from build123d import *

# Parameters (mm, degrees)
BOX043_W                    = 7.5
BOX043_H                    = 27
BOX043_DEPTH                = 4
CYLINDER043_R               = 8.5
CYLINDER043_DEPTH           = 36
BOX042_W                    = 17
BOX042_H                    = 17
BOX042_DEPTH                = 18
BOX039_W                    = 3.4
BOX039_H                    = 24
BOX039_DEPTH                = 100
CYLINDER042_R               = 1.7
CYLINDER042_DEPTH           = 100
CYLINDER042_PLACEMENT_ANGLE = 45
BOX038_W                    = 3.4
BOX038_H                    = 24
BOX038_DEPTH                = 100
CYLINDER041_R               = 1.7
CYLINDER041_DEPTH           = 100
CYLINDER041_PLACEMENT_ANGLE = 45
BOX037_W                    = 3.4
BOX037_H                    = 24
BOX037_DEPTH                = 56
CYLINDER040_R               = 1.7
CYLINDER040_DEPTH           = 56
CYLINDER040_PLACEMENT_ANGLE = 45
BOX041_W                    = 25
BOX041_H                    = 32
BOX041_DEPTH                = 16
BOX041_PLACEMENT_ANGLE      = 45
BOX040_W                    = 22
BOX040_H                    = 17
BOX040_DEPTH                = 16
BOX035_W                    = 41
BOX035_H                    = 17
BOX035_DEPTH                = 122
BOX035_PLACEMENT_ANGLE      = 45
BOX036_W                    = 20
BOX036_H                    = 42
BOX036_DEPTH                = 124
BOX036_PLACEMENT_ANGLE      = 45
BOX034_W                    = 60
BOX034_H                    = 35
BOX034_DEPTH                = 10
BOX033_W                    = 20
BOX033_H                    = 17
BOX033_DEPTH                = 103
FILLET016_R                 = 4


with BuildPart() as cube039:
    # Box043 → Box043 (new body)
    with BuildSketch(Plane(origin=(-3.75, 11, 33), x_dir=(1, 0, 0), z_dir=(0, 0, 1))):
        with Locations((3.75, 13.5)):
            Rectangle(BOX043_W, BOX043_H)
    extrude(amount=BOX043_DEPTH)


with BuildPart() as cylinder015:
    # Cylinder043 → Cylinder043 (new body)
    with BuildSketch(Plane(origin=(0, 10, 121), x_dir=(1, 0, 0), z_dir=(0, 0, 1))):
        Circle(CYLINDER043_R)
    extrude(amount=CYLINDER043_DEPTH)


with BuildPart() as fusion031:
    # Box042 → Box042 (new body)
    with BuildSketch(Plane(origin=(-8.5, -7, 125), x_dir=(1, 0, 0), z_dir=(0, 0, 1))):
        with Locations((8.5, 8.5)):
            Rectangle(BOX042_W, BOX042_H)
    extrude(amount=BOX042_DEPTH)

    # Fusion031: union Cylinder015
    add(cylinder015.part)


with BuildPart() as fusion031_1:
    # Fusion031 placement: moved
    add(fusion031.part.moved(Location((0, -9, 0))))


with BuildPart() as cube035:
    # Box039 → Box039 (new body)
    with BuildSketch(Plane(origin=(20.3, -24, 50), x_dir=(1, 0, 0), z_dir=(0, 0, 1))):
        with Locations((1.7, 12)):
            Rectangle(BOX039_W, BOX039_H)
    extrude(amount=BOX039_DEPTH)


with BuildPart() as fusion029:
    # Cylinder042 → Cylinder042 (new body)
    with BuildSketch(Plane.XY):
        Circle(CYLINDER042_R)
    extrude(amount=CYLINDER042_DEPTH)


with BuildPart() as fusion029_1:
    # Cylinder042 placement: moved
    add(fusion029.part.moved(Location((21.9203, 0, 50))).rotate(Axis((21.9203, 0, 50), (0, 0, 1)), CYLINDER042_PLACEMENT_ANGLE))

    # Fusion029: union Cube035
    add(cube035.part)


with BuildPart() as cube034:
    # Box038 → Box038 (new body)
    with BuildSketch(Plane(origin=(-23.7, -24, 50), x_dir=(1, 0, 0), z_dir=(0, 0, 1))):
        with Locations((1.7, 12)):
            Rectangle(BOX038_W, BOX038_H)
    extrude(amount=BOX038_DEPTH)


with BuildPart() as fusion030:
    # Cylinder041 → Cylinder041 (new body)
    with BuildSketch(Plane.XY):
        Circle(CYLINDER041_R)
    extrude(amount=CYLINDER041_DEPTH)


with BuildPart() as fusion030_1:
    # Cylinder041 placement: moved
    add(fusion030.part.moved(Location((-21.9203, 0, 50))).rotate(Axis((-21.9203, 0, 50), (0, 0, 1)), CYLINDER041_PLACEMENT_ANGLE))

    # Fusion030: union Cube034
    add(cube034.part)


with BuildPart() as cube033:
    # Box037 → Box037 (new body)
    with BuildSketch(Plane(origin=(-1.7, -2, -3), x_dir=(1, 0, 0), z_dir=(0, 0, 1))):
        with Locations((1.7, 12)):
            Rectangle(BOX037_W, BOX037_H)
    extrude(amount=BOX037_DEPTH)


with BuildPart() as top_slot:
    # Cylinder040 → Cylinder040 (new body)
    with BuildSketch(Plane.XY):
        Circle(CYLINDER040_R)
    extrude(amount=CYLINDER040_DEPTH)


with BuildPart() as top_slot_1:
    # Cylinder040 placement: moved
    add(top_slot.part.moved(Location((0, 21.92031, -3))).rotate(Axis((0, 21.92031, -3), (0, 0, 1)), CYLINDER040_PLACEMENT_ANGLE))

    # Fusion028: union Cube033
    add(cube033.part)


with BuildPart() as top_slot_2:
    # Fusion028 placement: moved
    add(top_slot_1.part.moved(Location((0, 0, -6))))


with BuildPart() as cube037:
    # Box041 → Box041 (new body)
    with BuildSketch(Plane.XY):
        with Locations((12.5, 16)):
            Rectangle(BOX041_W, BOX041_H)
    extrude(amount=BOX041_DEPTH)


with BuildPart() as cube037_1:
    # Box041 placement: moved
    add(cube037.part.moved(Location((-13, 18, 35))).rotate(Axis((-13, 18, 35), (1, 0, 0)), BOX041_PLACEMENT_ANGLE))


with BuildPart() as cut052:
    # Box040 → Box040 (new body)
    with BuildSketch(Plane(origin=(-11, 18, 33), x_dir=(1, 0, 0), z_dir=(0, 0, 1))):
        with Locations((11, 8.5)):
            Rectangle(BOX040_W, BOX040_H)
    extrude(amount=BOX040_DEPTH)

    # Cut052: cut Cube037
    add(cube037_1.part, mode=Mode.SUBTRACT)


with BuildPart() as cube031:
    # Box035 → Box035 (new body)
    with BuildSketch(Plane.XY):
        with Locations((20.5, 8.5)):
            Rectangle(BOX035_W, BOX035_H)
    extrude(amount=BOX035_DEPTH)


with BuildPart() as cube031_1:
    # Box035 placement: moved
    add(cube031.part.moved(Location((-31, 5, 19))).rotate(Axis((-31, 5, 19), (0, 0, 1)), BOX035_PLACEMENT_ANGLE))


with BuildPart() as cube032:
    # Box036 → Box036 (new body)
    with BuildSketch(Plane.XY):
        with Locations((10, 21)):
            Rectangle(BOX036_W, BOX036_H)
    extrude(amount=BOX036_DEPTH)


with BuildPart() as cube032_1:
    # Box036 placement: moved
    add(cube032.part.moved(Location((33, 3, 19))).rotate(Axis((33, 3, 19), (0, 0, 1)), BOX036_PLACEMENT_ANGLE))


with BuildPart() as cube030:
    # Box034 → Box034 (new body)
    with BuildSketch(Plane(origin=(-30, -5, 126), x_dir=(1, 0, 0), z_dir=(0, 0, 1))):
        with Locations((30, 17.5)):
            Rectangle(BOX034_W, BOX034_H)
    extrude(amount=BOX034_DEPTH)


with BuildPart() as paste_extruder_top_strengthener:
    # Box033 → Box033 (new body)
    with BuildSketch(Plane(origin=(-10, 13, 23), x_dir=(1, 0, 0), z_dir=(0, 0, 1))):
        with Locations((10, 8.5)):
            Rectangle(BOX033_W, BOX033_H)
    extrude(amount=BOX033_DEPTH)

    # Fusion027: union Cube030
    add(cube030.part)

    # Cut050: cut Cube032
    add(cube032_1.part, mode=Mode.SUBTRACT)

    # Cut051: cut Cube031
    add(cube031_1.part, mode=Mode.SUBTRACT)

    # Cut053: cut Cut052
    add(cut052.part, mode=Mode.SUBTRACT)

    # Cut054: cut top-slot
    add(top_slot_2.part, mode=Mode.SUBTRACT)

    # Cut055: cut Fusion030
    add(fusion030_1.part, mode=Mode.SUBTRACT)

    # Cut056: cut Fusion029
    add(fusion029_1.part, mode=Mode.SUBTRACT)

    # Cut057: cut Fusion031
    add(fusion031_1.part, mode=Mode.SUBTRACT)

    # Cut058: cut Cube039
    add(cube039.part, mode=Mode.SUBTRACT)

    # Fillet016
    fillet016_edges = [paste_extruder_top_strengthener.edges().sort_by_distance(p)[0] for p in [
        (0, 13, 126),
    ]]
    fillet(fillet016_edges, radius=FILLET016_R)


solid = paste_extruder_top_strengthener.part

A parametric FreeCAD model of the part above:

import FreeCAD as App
import Part
import Sketcher
Q = App.Units.Quantity


def edges_at(feature, points):
    """Names of the edges that pass closest to the given points."""
    edges = feature.Shape.Edges
    near = lambda p: min(range(len(edges)), key=lambda i: edges[i].distToShape(Part.Vertex(*p))[0])
    return sorted({f"Edge{near(p) + 1}" for p in points})


def add_polygon(sketch, points):
    """Adds a closed chain of lines whose ends are joined by coincident constraints."""
    first, n = sketch.GeometryCount, len(points)
    for a, b in zip(points, points[1:] + points[:1]):
        sketch.addGeometry(Part.LineSegment(App.Vector(*a, 0), App.Vector(*b, 0)), False)
    for i in range(n):
        sketch.addConstraint(Sketcher.Constraint("Coincident", first + i, 2, first + (i + 1) % n, 1))

doc = App.newDocument("Part")
body = doc.addObject("PartDesign::Body", "Body")

sketch1 = body.newObject("Sketcher::SketchObject", "Sketch")
sketch1.AttachmentSupport = (doc.getObject("XY_Plane"), [""])
sketch1.MapMode = "FlatFace"
sketch1.AttachmentOffset = App.Placement(App.Vector(0, 0, 33), App.Rotation())
add_polygon(sketch1, [(-4, 38), (-4, 11), (4, 11), (4, 38)])
sketch1.addConstraint([
    Sketcher.Constraint("Vertical", 0),
    Sketcher.Constraint("Horizontal", 1),
    Sketcher.Constraint("Vertical", 2),
    Sketcher.Constraint("Horizontal", 3),
    Sketcher.Constraint("DistanceY", 0, 2, 0, 1, Q("27 mm")),
    Sketcher.Constraint("DistanceX", 1, 1, 1, 2, Q("7.5 mm")),
    Sketcher.Constraint("DistanceY", -1, 1, 0, 2, Q("11 mm")),
    Sketcher.Constraint("DistanceX", 0, 2, -1, 1, Q("3.75 mm")),
])
pad1 = body.newObject("PartDesign::Pad", "Pad")
pad1.Profile = sketch1
pad1.Length = 4
body2 = doc.addObject("PartDesign::Body", "Body001")

sketch2 = body2.newObject("Sketcher::SketchObject", "Sketch001")
sketch2.AttachmentSupport = (doc.getObject("XY_Plane001"), [""])
sketch2.MapMode = "FlatFace"
sketch2.AttachmentOffset = App.Placement(App.Vector(0, 0, 121), App.Rotation())
sketch2.addGeometry(Part.Circle(App.Vector(0, 10, 0), App.Vector(0, 0, 1), 8), False)
sketch2.addConstraint([
    Sketcher.Constraint("PointOnObject", 0, 3, -2),
    Sketcher.Constraint("Diameter", 0, Q("17 mm")),
    Sketcher.Constraint("DistanceY", -1, 1, 0, 3, Q("10 mm")),
])
pad2 = body2.newObject("PartDesign::Pad", "Pad001")
pad2.Profile = sketch2
pad2.Length = 36
body3 = doc.addObject("PartDesign::Body", "Body002")

sketch3 = body3.newObject("Sketcher::SketchObject", "Sketch002")
sketch3.AttachmentSupport = (doc.getObject("XY_Plane002"), [""])
sketch3.MapMode = "FlatFace"
sketch3.AttachmentOffset = App.Placement(App.Vector(0, 0, 125), App.Rotation())
add_polygon(sketch3, [(-8, 10), (-8, -7), (8, -7), (8, 10)])
sketch3.addConstraint([
    Sketcher.Constraint("Vertical", 0),
    Sketcher.Constraint("Horizontal", 1),
    Sketcher.Constraint("Vertical", 2),
    Sketcher.Constraint("Horizontal", 3),
    Sketcher.Constraint("Equal", 3, 0),
    Sketcher.Constraint("DistanceX", 1, 1, 1, 2, Q("17 mm")),
    Sketcher.Constraint("DistanceY", 0, 2, -1, 1, Q("7 mm")),
    Sketcher.Constraint("DistanceX", 0, 2, -1, 1, Q("8.5 mm")),
])
pad3 = body3.newObject("PartDesign::Pad", "Pad002")
pad3.Profile = sketch3
pad3.Length = 18
doc.recompute()

boolean = body3.newObject("PartDesign::Boolean", "Boolean")
boolean.Type = "Fuse"
boolean.addObjects([body2])
body4 = doc.addObject("PartDesign::Body", "Body003")
doc.recompute()

body3.Placement = App.Placement(App.Vector(0, -9, 0), App.Rotation(App.Vector(0, 0, 1), 0))
boolean2 = body4.newObject("PartDesign::Boolean", "Boolean001")
boolean2.Type = "Fuse"
boolean2.addObjects([body3])
body5 = doc.addObject("PartDesign::Body", "Body004")

sketch4 = body5.newObject("Sketcher::SketchObject", "Sketch003")
sketch4.AttachmentSupport = (doc.getObject("XY_Plane004"), [""])
sketch4.MapMode = "FlatFace"
sketch4.AttachmentOffset = App.Placement(App.Vector(0, 0, 50), App.Rotation())
add_polygon(sketch4, [(20.3, 0), (20.3, -24), (23.7, -24), (23.7, 0)])
sketch4.addConstraint([
    Sketcher.Constraint("Vertical", 0),
    Sketcher.Constraint("Horizontal", 1),
    Sketcher.Constraint("Vertical", 2),
    Sketcher.Constraint("Horizontal", 3),
    Sketcher.Constraint("PointOnObject", 2, 2, -1),
    Sketcher.Constraint("DistanceY", 0, 2, 0, 1, Q("24 mm")),
    Sketcher.Constraint("DistanceX", 1, 1, 1, 2, Q("3.4 mm")),
    Sketcher.Constraint("DistanceX", -1, 1, 0, 2, Q("20.3 mm")),
])
pad4 = body5.newObject("PartDesign::Pad", "Pad003")
pad4.Profile = sketch4
pad4.Length = 100
body6 = doc.addObject("PartDesign::Body", "Body005")

sketch5 = body6.newObject("Sketcher::SketchObject", "Sketch004")
sketch5.AttachmentSupport = (doc.getObject("XY_Plane005"), [""])
sketch5.MapMode = "FlatFace"
sketch5.addGeometry(Part.Circle(App.Vector(0, 0, 0), App.Vector(0, 0, 1), 1.7), False)
sketch5.addConstraint([
    Sketcher.Constraint("Coincident", 0, 3, -1, 1),
    Sketcher.Constraint("Diameter", 0, Q("3.4 mm")),
])
pad5 = body6.newObject("PartDesign::Pad", "Pad004")
pad5.Profile = sketch5
pad5.Length = 100
body7 = doc.addObject("PartDesign::Body", "Body006")
doc.recompute()

body6.Placement = App.Placement(App.Vector(21.9203, 0, 50), App.Rotation(App.Vector(0, 0, 1), 45))
boolean3 = body7.newObject("PartDesign::Boolean", "Boolean002")
boolean3.Type = "Fuse"
boolean3.addObjects([body6])
doc.recompute()

boolean4 = body7.newObject("PartDesign::Boolean", "Boolean003")
boolean4.Type = "Fuse"
boolean4.addObjects([body5])
body8 = doc.addObject("PartDesign::Body", "Body007")

sketch6 = body8.newObject("Sketcher::SketchObject", "Sketch005")
sketch6.AttachmentSupport = (doc.getObject("XY_Plane007"), [""])
sketch6.MapMode = "FlatFace"
sketch6.AttachmentOffset = App.Placement(App.Vector(0, 0, 50), App.Rotation())
add_polygon(sketch6, [(-23.7, 0), (-23.7, -24), (-20.3, -24), (-20.3, 0)])
sketch6.addConstraint([
    Sketcher.Constraint("Vertical", 0),
    Sketcher.Constraint("Horizontal", 1),
    Sketcher.Constraint("Vertical", 2),
    Sketcher.Constraint("Horizontal", 3),
    Sketcher.Constraint("PointOnObject", 2, 2, -1),
    Sketcher.Constraint("DistanceY", 0, 2, 0, 1, Q("24 mm")),
    Sketcher.Constraint("DistanceX", 1, 1, 1, 2, Q("3.4 mm")),
    Sketcher.Constraint("DistanceX", 0, 2, -1, 1, Q("23.7 mm")),
])
pad6 = body8.newObject("PartDesign::Pad", "Pad005")
pad6.Profile = sketch6
pad6.Length = 100
body9 = doc.addObject("PartDesign::Body", "Body008")

sketch7 = body9.newObject("Sketcher::SketchObject", "Sketch006")
sketch7.AttachmentSupport = (doc.getObject("XY_Plane008"), [""])
sketch7.MapMode = "FlatFace"
sketch7.addGeometry(Part.Circle(App.Vector(0, 0, 0), App.Vector(0, 0, 1), 1.7), False)
sketch7.addConstraint([
    Sketcher.Constraint("Coincident", 0, 3, -1, 1),
    Sketcher.Constraint("Diameter", 0, Q("3.4 mm")),
])
pad7 = body9.newObject("PartDesign::Pad", "Pad006")
pad7.Profile = sketch7
pad7.Length = 100
body10 = doc.addObject("PartDesign::Body", "Body009")
doc.recompute()

body9.Placement = App.Placement(App.Vector(-21.9203, 0, 50), App.Rotation(App.Vector(0, 0, 1), 45))
boolean5 = body10.newObject("PartDesign::Boolean", "Boolean004")
boolean5.Type = "Fuse"
boolean5.addObjects([body9])
doc.recompute()

boolean6 = body10.newObject("PartDesign::Boolean", "Boolean005")
boolean6.Type = "Fuse"
boolean6.addObjects([body8])
body11 = doc.addObject("PartDesign::Body", "Body010")

sketch8 = body11.newObject("Sketcher::SketchObject", "Sketch007")
sketch8.AttachmentSupport = (doc.getObject("XY_Plane010"), [""])
sketch8.MapMode = "FlatFace"
sketch8.AttachmentOffset = App.Placement(App.Vector(0, 0, -3), App.Rotation())
add_polygon(sketch8, [(-1.7, 22), (-1.7, -2), (1.7, -2), (1.7, 22)])
sketch8.addConstraint([
    Sketcher.Constraint("Vertical", 0),
    Sketcher.Constraint("Horizontal", 1),
    Sketcher.Constraint("Vertical", 2),
    Sketcher.Constraint("Horizontal", 3),
    Sketcher.Constraint("DistanceY", 0, 2, 0, 1, Q("24 mm")),
    Sketcher.Constraint("DistanceX", 1, 1, 1, 2, Q("3.4 mm")),
    Sketcher.Constraint("DistanceY", 0, 2, -1, 1, Q("2 mm")),
    Sketcher.Constraint("DistanceX", 0, 2, -1, 1, Q("1.7 mm")),
])
pad8 = body11.newObject("PartDesign::Pad", "Pad007")
pad8.Profile = sketch8
pad8.Length = 56
body12 = doc.addObject("PartDesign::Body", "Body011")

sketch9 = body12.newObject("Sketcher::SketchObject", "Sketch008")
sketch9.AttachmentSupport = (doc.getObject("XY_Plane011"), [""])
sketch9.MapMode = "FlatFace"
sketch9.addGeometry(Part.Circle(App.Vector(0, 0, 0), App.Vector(0, 0, 1), 1.7), False)
sketch9.addConstraint([
    Sketcher.Constraint("Coincident", 0, 3, -1, 1),
    Sketcher.Constraint("Diameter", 0, Q("3.4 mm")),
])
pad9 = body12.newObject("PartDesign::Pad", "Pad008")
pad9.Profile = sketch9
pad9.Length = 56
body13 = doc.addObject("PartDesign::Body", "Body012")
doc.recompute()

body12.Placement = App.Placement(App.Vector(0, 21.92031, -3), App.Rotation(App.Vector(0, 0, 1), 45))
boolean7 = body13.newObject("PartDesign::Boolean", "Boolean006")
boolean7.Type = "Fuse"
boolean7.addObjects([body12])
doc.recompute()

boolean8 = body13.newObject("PartDesign::Boolean", "Boolean007")
boolean8.Type = "Fuse"
boolean8.addObjects([body11])
body14 = doc.addObject("PartDesign::Body", "Body013")
doc.recompute()

body13.Placement = App.Placement(App.Vector(0, 0, -6), App.Rotation(App.Vector(0, 0, 1), 0))
boolean9 = body14.newObject("PartDesign::Boolean", "Boolean008")
boolean9.Type = "Fuse"
boolean9.addObjects([body13])
body15 = doc.addObject("PartDesign::Body", "Body014")

sketch10 = body15.newObject("Sketcher::SketchObject", "Sketch009")
sketch10.AttachmentSupport = (doc.getObject("XY_Plane014"), [""])
sketch10.MapMode = "FlatFace"
add_polygon(sketch10, [(0, 32), (0, 0), (25, 0), (25, 32)])
sketch10.addConstraint([
    Sketcher.Constraint("Vertical", 0),
    Sketcher.Constraint("Horizontal", 1),
    Sketcher.Constraint("Vertical", 2),
    Sketcher.Constraint("Horizontal", 3),
    Sketcher.Constraint("Coincident", 0, 2, -1, 1),
    Sketcher.Constraint("DistanceX", 1, 1, 1, 2, Q("25 mm")),
    Sketcher.Constraint("DistanceY", 0, 2, 0, 1, Q("32 mm")),
])
pad10 = body15.newObject("PartDesign::Pad", "Pad009")
pad10.Profile = sketch10
pad10.Length = 16
body16 = doc.addObject("PartDesign::Body", "Body015")
doc.recompute()

body15.Placement = App.Placement(App.Vector(-13, 18, 35), App.Rotation(App.Vector(1, 0, 0), 45))
boolean10 = body16.newObject("PartDesign::Boolean", "Boolean009")
boolean10.Type = "Fuse"
boolean10.addObjects([body15])
body17 = doc.addObject("PartDesign::Body", "Body016")

sketch11 = body17.newObject("Sketcher::SketchObject", "Sketch010")
sketch11.AttachmentSupport = (doc.getObject("XY_Plane016"), [""])
sketch11.MapMode = "FlatFace"
sketch11.AttachmentOffset = App.Placement(App.Vector(0, 0, 33), App.Rotation())
add_polygon(sketch11, [(-11, 35), (-11, 18), (11, 18), (11, 35)])
sketch11.addConstraint([
    Sketcher.Constraint("Vertical", 0),
    Sketcher.Constraint("Horizontal", 1),
    Sketcher.Constraint("Vertical", 2),
    Sketcher.Constraint("Horizontal", 3),
    Sketcher.Constraint("DistanceX", 1, 1, 1, 2, Q("22 mm")),
    Sketcher.Constraint("DistanceY", 0, 2, 0, 1, Q("17 mm")),
    Sketcher.Constraint("DistanceX", 0, 2, -1, 1, Q("11 mm")),
    Sketcher.Constraint("DistanceY", -1, 1, 0, 2, Q("18 mm")),
])
pad11 = body17.newObject("PartDesign::Pad", "Pad010")
pad11.Profile = sketch11
pad11.Length = 16
doc.recompute()

boolean11 = body17.newObject("PartDesign::Boolean", "Boolean010")
boolean11.Type = "Cut"
boolean11.addObjects([body16])
body18 = doc.addObject("PartDesign::Body", "Body017")

sketch12 = body18.newObject("Sketcher::SketchObject", "Sketch011")
sketch12.AttachmentSupport = (doc.getObject("XY_Plane017"), [""])
sketch12.MapMode = "FlatFace"
add_polygon(sketch12, [(0, 17), (0, 0), (41, 0), (41, 17)])
sketch12.addConstraint([
    Sketcher.Constraint("Vertical", 0),
    Sketcher.Constraint("Horizontal", 1),
    Sketcher.Constraint("Vertical", 2),
    Sketcher.Constraint("Horizontal", 3),
    Sketcher.Constraint("Coincident", 0, 2, -1, 1),
    Sketcher.Constraint("DistanceX", 1, 1, 1, 2, Q("41 mm")),
    Sketcher.Constraint("DistanceY", 0, 2, 0, 1, Q("17 mm")),
])
pad12 = body18.newObject("PartDesign::Pad", "Pad011")
pad12.Profile = sketch12
pad12.Length = 122
body19 = doc.addObject("PartDesign::Body", "Body018")
doc.recompute()

body18.Placement = App.Placement(App.Vector(-31, 5, 19), App.Rotation(App.Vector(0, 0, 1), 45))
boolean12 = body19.newObject("PartDesign::Boolean", "Boolean011")
boolean12.Type = "Fuse"
boolean12.addObjects([body18])
body20 = doc.addObject("PartDesign::Body", "Body019")

sketch13 = body20.newObject("Sketcher::SketchObject", "Sketch012")
sketch13.AttachmentSupport = (doc.getObject("XY_Plane019"), [""])
sketch13.MapMode = "FlatFace"
add_polygon(sketch13, [(0, 42), (0, 0), (20, 0), (20, 42)])
sketch13.addConstraint([
    Sketcher.Constraint("Vertical", 0),
    Sketcher.Constraint("Horizontal", 1),
    Sketcher.Constraint("Vertical", 2),
    Sketcher.Constraint("Horizontal", 3),
    Sketcher.Constraint("Coincident", 0, 2, -1, 1),
    Sketcher.Constraint("DistanceX", 1, 1, 1, 2, Q("20 mm")),
    Sketcher.Constraint("DistanceY", 0, 2, 0, 1, Q("42 mm")),
])
pad13 = body20.newObject("PartDesign::Pad", "Pad012")
pad13.Profile = sketch13
pad13.Length = 124
body21 = doc.addObject("PartDesign::Body", "Body020")
doc.recompute()

body20.Placement = App.Placement(App.Vector(33, 3, 19), App.Rotation(App.Vector(0, 0, 1), 45))
boolean13 = body21.newObject("PartDesign::Boolean", "Boolean012")
boolean13.Type = "Fuse"
boolean13.addObjects([body20])
body22 = doc.addObject("PartDesign::Body", "Body021")

sketch14 = body22.newObject("Sketcher::SketchObject", "Sketch013")
sketch14.AttachmentSupport = (doc.getObject("XY_Plane021"), [""])
sketch14.MapMode = "FlatFace"
sketch14.AttachmentOffset = App.Placement(App.Vector(0, 0, 126), App.Rotation())
add_polygon(sketch14, [(-30, 30), (-30, -5), (30, -5), (30, 30)])
sketch14.addConstraint([
    Sketcher.Constraint("Vertical", 0),
    Sketcher.Constraint("Horizontal", 1),
    Sketcher.Constraint("Vertical", 2),
    Sketcher.Constraint("Horizontal", 3),
    Sketcher.Constraint("DistanceX", 1, 1, 1, 2, Q("60 mm")),
    Sketcher.Constraint("DistanceY", 0, 2, 0, 1, Q("35 mm")),
    Sketcher.Constraint("DistanceX", 0, 2, -1, 1, Q("30 mm")),
    Sketcher.Constraint("DistanceY", 0, 2, -1, 1, Q("5 mm")),
])
pad14 = body22.newObject("PartDesign::Pad", "Pad013")
pad14.Profile = sketch14
pad14.Length = 10
body23 = doc.addObject("PartDesign::Body", "Body022")

sketch15 = body23.newObject("Sketcher::SketchObject", "Sketch014")
sketch15.AttachmentSupport = (doc.getObject("XY_Plane022"), [""])
sketch15.MapMode = "FlatFace"
sketch15.AttachmentOffset = App.Placement(App.Vector(0, 0, 23), App.Rotation())
add_polygon(sketch15, [(-10, 30), (-10, 13), (10, 13), (10, 30)])
sketch15.addConstraint([
    Sketcher.Constraint("Vertical", 0),
    Sketcher.Constraint("Horizontal", 1),
    Sketcher.Constraint("Vertical", 2),
    Sketcher.Constraint("Horizontal", 3),
    Sketcher.Constraint("DistanceX", 1, 1, 1, 2, Q("20 mm")),
    Sketcher.Constraint("DistanceY", 0, 2, 0, 1, Q("17 mm")),
    Sketcher.Constraint("DistanceX", 0, 2, -1, 1, Q("10 mm")),
    Sketcher.Constraint("DistanceY", -1, 1, 0, 2, Q("13 mm")),
])
pad15 = body23.newObject("PartDesign::Pad", "Pad014")
pad15.Profile = sketch15
pad15.Length = 103
doc.recompute()

boolean14 = body23.newObject("PartDesign::Boolean", "Boolean013")
boolean14.Type = "Fuse"
boolean14.addObjects([body22])
doc.recompute()

boolean15 = body23.newObject("PartDesign::Boolean", "Boolean014")
boolean15.Type = "Cut"
boolean15.addObjects([body21])
doc.recompute()

boolean16 = body23.newObject("PartDesign::Boolean", "Boolean015")
boolean16.Type = "Cut"
boolean16.addObjects([body19])
doc.recompute()

boolean17 = body23.newObject("PartDesign::Boolean", "Boolean016")
boolean17.Type = "Cut"
boolean17.addObjects([body17])
doc.recompute()

boolean18 = body23.newObject("PartDesign::Boolean", "Boolean017")
boolean18.Type = "Cut"
boolean18.addObjects([body14])
doc.recompute()

boolean19 = body23.newObject("PartDesign::Boolean", "Boolean018")
boolean19.Type = "Cut"
boolean19.addObjects([body10])
doc.recompute()

boolean20 = body23.newObject("PartDesign::Boolean", "Boolean019")
boolean20.Type = "Cut"
boolean20.addObjects([body7])
doc.recompute()

boolean21 = body23.newObject("PartDesign::Boolean", "Boolean020")
boolean21.Type = "Cut"
boolean21.addObjects([body4])
doc.recompute()

boolean22 = body23.newObject("PartDesign::Boolean", "Boolean021")
boolean22.Type = "Cut"
boolean22.addObjects([body])
doc.recompute()

fillet = body23.newObject("PartDesign::Fillet", "Fillet")
fillet.Base = (boolean22, edges_at(boolean22, [(0, 13, 126)]))
fillet.Radius = 4

doc.recompute()
